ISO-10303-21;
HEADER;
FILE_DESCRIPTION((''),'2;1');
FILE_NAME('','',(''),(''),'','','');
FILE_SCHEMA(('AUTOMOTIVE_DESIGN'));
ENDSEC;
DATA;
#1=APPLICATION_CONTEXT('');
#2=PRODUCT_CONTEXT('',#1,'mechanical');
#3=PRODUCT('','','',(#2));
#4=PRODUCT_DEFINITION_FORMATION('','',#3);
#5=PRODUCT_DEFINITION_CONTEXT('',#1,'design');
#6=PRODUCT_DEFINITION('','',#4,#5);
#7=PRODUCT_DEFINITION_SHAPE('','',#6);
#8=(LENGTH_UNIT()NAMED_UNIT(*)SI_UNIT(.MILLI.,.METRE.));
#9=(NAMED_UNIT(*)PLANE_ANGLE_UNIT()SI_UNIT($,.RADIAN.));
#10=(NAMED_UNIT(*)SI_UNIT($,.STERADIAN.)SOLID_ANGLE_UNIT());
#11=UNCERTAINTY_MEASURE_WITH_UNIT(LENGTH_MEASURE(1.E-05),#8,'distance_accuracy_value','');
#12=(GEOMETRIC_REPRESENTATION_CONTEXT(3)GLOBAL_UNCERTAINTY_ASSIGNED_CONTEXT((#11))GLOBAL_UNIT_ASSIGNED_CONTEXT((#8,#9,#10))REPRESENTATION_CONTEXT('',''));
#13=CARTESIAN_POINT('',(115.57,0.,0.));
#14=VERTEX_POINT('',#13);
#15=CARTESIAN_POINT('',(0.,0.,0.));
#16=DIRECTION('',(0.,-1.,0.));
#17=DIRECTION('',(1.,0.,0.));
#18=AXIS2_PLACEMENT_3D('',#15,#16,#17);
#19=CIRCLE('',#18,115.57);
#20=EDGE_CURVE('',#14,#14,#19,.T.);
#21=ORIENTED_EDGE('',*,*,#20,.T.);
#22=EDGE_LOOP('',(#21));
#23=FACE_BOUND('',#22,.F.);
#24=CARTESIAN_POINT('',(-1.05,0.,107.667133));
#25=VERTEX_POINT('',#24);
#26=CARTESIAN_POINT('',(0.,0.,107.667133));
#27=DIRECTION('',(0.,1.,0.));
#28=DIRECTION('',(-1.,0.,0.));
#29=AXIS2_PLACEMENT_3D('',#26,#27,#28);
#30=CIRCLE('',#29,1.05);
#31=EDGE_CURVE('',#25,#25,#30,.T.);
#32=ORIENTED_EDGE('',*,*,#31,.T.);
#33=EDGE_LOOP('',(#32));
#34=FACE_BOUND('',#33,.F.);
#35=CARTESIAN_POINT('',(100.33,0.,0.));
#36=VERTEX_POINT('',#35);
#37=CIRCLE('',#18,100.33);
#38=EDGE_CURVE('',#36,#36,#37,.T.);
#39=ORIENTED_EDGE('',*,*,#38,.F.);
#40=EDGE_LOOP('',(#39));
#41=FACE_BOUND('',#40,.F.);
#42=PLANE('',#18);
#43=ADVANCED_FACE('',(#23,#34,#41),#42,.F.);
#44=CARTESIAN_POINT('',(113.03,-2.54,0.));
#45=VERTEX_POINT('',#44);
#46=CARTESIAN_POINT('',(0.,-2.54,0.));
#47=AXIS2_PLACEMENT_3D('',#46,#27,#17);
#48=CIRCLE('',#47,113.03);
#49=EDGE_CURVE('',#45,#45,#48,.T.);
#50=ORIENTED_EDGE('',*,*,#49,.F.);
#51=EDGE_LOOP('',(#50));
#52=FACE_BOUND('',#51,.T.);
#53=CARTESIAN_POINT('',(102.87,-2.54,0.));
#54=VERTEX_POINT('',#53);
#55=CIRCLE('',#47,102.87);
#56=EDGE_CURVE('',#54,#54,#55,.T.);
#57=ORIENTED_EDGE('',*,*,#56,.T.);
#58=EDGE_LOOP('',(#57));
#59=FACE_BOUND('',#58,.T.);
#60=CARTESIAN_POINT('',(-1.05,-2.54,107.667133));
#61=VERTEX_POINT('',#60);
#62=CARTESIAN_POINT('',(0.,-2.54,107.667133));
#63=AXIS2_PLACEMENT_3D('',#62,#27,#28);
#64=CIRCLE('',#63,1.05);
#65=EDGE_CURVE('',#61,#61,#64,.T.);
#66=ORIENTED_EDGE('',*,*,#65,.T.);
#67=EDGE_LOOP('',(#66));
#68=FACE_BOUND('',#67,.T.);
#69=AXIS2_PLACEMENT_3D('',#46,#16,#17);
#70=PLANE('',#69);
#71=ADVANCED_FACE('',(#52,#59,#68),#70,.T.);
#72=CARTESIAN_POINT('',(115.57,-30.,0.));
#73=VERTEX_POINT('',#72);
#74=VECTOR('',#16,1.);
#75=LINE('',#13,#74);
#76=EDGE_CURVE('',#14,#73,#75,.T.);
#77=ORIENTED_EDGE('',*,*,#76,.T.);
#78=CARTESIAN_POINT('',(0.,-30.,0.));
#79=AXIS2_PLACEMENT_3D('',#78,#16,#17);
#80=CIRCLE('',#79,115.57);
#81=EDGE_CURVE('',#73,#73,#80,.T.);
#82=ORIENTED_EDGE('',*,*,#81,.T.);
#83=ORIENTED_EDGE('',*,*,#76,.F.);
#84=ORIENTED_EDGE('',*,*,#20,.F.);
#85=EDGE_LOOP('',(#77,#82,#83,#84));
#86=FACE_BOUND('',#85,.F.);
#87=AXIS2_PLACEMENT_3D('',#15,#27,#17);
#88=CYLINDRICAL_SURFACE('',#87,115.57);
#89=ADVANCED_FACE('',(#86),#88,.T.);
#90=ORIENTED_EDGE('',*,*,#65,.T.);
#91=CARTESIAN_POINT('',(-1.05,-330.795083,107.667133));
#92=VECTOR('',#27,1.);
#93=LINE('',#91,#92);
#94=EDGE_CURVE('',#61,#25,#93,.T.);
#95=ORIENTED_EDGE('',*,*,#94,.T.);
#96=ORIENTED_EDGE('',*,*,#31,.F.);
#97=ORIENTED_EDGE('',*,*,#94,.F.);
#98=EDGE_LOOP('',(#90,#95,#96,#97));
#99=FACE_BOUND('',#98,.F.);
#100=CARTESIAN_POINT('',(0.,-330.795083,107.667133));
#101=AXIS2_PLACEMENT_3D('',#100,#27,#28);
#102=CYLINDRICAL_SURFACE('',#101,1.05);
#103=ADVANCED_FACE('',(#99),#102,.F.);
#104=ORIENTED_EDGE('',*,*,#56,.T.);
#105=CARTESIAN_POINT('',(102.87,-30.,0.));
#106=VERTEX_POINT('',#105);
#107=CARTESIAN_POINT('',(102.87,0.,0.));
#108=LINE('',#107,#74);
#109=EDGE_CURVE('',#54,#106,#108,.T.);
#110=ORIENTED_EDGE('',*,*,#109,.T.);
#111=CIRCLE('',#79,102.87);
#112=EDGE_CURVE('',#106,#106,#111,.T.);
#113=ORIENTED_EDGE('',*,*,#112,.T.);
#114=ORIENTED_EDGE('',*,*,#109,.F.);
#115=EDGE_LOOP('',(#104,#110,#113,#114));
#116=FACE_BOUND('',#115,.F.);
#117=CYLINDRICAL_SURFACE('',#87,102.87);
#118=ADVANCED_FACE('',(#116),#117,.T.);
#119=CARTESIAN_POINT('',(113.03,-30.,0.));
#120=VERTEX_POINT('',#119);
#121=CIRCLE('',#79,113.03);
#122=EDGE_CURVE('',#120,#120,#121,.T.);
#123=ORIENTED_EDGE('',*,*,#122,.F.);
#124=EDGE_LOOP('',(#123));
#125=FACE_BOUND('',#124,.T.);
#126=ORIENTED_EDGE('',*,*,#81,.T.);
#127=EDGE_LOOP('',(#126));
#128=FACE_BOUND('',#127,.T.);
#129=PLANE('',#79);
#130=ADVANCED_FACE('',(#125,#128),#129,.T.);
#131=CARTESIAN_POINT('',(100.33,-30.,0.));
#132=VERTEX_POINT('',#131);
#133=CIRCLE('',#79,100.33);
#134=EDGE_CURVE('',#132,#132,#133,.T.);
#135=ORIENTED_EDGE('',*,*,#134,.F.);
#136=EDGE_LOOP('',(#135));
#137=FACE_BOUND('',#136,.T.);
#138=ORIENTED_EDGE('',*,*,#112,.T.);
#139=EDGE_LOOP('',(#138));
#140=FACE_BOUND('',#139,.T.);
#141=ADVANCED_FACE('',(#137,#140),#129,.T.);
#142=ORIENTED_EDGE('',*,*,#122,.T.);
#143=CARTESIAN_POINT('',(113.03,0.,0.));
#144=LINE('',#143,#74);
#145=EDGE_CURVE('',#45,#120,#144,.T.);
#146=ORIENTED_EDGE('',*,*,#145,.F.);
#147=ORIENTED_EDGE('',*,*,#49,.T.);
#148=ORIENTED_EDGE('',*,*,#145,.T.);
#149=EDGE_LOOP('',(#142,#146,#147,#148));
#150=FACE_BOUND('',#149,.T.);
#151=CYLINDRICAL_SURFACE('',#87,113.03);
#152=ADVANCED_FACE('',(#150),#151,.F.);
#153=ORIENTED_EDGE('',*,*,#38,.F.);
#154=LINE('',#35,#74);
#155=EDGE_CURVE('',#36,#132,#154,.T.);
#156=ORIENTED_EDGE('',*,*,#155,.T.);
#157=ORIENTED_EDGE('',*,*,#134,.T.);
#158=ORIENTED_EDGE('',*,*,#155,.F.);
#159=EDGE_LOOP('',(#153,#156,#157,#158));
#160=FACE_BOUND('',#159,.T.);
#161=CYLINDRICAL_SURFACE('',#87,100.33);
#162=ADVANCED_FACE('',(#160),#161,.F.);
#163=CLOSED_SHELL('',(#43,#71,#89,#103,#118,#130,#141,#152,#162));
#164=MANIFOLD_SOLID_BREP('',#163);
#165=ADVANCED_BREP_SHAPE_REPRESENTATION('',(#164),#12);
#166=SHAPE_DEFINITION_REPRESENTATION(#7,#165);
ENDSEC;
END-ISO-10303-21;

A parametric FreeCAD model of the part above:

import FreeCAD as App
import Part
import Sketcher

V = App.Vector
Q = App.Units.Quantity


def faces_at(feature, points):
    """Names of the faces that lie closest to the given points."""
    faces = feature.Shape.Faces
    near = lambda p: min(range(len(faces)), key=lambda i: faces[i].distToShape(Part.Vertex(*p))[0])
    return sorted({f"Face{near(p) + 1}" for p in points})

doc = App.newDocument("Part")
params = doc.addObject("Spreadsheet::Sheet", "Params")
for row, (alias, value) in enumerate([
    ("sketch1_diameter", "9.1 in"),
    ("sketch1_diameter2", "7.9 in"),
    ("pad1_length", "30 mm"),
    ("thickness_wall", "0.1 in"),
    ("hole_diameter", "2.1 mm"),
], start=1):
    params.set(f"A{row}", alias)
    params.set(f"B{row}", "=" + value)
    params.setAlias(f"B{row}", alias)

body = doc.addObject("PartDesign::Body", "Body")

sketch1 = doc.addObject("Sketcher::SketchObject", "Sketch")
body.addObject(sketch1)
sketch1.AttachmentSupport = (doc.XZ_Plane, [""])
sketch1.MapMode = "FlatFace"
sketch1.addGeometry([
    Part.Circle(V(0, 0, 0), V(0, 0, 1), 116),
    Part.Circle(V(0, 0, 0), V(0, 0, 1), 100),
], False)
sketch1.addConstraint([
    Sketcher.Constraint("Coincident", 0, 3, -1, 1),
    Sketcher.Constraint("Coincident", 1, 3, -1, 1),
    Sketcher.Constraint("Diameter", 0, Q("9.1 in")),
    Sketcher.Constraint("Diameter", 1, Q("7.9 in")),
])
sketch1.setExpression("Constraints[2]", "Params.sketch1_diameter")
sketch1.setExpression("Constraints[3]", "Params.sketch1_diameter2")
pad1 = doc.addObject("PartDesign::Pad", "Pad")
body.addObject(pad1)
pad1.Profile = sketch1
pad1.setExpression("Length", "Params.pad1_length")
doc.recompute()

thickness = doc.addObject("PartDesign::Thickness", "Thickness")
body.addObject(thickness)
thickness.Base = (pad1, faces_at(pad1, [(-108.636, -30, 0)]))
thickness.setExpression("Value", "Params.thickness_wall")
thickness.Reversed = True
thickness.Join = "Arc"

sketch2 = doc.addObject("Sketcher::SketchObject", "Sketch001")
body.addObject(sketch2)
sketch2.AttachmentSupport = (doc.XZ_Plane, [""])
sketch2.MapMode = "FlatFace"
sketch2.AttachmentOffset = App.Placement(V(0, 0, 0.1 * 25.4), App.Rotation())
sketch2.addGeometry(Part.Circle(V(0, 107.7, 0), V(0, 0, 1), 1.1), False)
sketch2.addConstraint([
    Sketcher.Constraint("PointOnObject", 0, 3, -2),
    Sketcher.Constraint("Diameter", 0, Q("2.1 mm")),
    Sketcher.Constraint("DistanceY", -1, 1, 0, 3, Q("107.667133 mm")),
])
doc.recompute()
hole = doc.addObject("PartDesign::Hole", "Hole")
body.addObject(hole)
hole.Profile = sketch2
hole.ThreadType = "None"
hole.setExpression("Diameter", "Params.hole_diameter")
hole.DepthType = "ThroughAll"

doc.recompute()
